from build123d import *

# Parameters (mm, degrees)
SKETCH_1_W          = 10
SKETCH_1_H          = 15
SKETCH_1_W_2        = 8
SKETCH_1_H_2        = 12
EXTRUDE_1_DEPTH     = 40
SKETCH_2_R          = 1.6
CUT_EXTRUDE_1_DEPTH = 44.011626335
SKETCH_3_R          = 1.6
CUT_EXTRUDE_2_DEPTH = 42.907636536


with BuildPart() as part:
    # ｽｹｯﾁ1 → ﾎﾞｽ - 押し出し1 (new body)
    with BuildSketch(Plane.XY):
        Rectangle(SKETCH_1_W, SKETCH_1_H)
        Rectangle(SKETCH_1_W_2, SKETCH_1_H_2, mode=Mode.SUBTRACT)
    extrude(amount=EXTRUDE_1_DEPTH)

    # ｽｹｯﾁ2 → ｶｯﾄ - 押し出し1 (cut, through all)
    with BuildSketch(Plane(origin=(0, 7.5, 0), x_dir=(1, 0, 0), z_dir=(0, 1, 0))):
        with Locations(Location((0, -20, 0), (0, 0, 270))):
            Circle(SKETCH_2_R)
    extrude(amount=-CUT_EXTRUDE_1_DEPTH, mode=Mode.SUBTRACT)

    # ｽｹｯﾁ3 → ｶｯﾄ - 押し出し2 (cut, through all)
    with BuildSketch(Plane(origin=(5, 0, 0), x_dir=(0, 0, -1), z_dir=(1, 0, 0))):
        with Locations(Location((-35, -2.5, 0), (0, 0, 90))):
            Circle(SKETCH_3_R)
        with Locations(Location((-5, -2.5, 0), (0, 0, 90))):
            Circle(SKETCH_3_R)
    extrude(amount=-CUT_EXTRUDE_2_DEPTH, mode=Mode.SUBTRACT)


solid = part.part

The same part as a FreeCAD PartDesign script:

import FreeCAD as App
import Part
import Sketcher
from FreeCAD import Vector
Q = App.Units.Quantity

doc = App.newDocument("Part")
body = doc.addObject("PartDesign::Body", "Body")

# Sketch on XY plane
sketch1 = doc.addObject("Sketcher::SketchObject", "Sketch")
body.addObject(sketch1)
sketch1.AttachmentSupport = (doc.XY_Plane, [""])
sketch1.MapMode = "FlatFace"
sketch1.addGeometry(Part.LineSegment(Vector(-5, 8, 0), Vector(-5, -8, 0)), False)
sketch1.addGeometry(Part.LineSegment(Vector(-5, -8, 0), Vector(5, -8, 0)), False)
sketch1.addGeometry(Part.LineSegment(Vector(5, -8, 0), Vector(5, 8, 0)), False)
sketch1.addGeometry(Part.LineSegment(Vector(5, 8, 0), Vector(-5, 8, 0)), False)
sketch1.addGeometry(Part.LineSegment(Vector(4, -6, 0), Vector(-4, -6, 0)), False)
sketch1.addGeometry(Part.LineSegment(Vector(-4, -6, 0), Vector(-4, 6, 0)), False)
sketch1.addGeometry(Part.LineSegment(Vector(-4, 6, 0), Vector(4, 6, 0)), False)
sketch1.addGeometry(Part.LineSegment(Vector(4, 6, 0), Vector(4, -6, 0)), False)
sketch1.addConstraint(Sketcher.Constraint("Coincident", 0, 2, 1, 1))
sketch1.addConstraint(Sketcher.Constraint("Coincident", 1, 2, 2, 1))
sketch1.addConstraint(Sketcher.Constraint("Coincident", 2, 2, 3, 1))
sketch1.addConstraint(Sketcher.Constraint("Coincident", 3, 2, 0, 1))
sketch1.addConstraint(Sketcher.Constraint("Coincident", 4, 2, 5, 1))
sketch1.addConstraint(Sketcher.Constraint("Coincident", 5, 2, 6, 1))
sketch1.addConstraint(Sketcher.Constraint("Coincident", 6, 2, 7, 1))
sketch1.addConstraint(Sketcher.Constraint("Coincident", 7, 2, 4, 1))
sketch1.addConstraint(Sketcher.Constraint("Vertical", 0))
sketch1.addConstraint(Sketcher.Constraint("Horizontal", 1))
sketch1.addConstraint(Sketcher.Constraint("Vertical", 2))
sketch1.addConstraint(Sketcher.Constraint("Horizontal", 3))
sketch1.addConstraint(Sketcher.Constraint("Horizontal", 4))
sketch1.addConstraint(Sketcher.Constraint("Vertical", 5))
sketch1.addConstraint(Sketcher.Constraint("Horizontal", 6))
sketch1.addConstraint(Sketcher.Constraint("Vertical", 7))
sketch1.addConstraint(Sketcher.Constraint("Symmetric", 0, 2, 2, 2, -1, 1))
sketch1.addConstraint(Sketcher.Constraint("Symmetric", 4, 2, 6, 2, -1, 1))
sketch1.addConstraint(Sketcher.Constraint("DistanceX", 1, 1, 1, 2, Q("10 mm")))
sketch1.addConstraint(Sketcher.Constraint("DistanceX", 4, 2, 4, 1, Q("8 mm")))
sketch1.addConstraint(Sketcher.Constraint("DistanceY", 0, 2, 0, 1, Q("15 mm")))
sketch1.addConstraint(Sketcher.Constraint("DistanceY", 5, 1, 5, 2, Q("12 mm")))
pad1 = doc.addObject("PartDesign::Pad", "Pad")
body.addObject(pad1)
pad1.Profile = sketch1
pad1.Length = 40

# Sketch on XZ plane
sketch2 = doc.addObject("Sketcher::SketchObject", "Sketch001")
body.addObject(sketch2)
sketch2.AttachmentSupport = (doc.XZ_Plane, [""])
sketch2.MapMode = "FlatFace"
sketch2.AttachmentOffset = App.Placement(Vector(0, 0, -7.5), App.Rotation())
sketch2.addGeometry(Part.Circle(Vector(0, 20, 0), Vector(0, 0, 1), 1.6), False)
sketch2.addConstraint(Sketcher.Constraint("PointOnObject", 0, 3, -2))
sketch2.addConstraint(Sketcher.Constraint("Diameter", 0, Q("3.2 mm")))
sketch2.addConstraint(Sketcher.Constraint("DistanceY", -1, 1, 0, 3, Q("20 mm")))
pocket1 = doc.addObject("PartDesign::Pocket", "Pocket")
body.addObject(pocket1)
pocket1.Profile = sketch2
pocket1.Type = "ThroughAll"
pocket1.Reversed = True

# Sketch on YZ plane
sketch3 = doc.addObject("Sketcher::SketchObject", "Sketch002")
body.addObject(sketch3)
sketch3.AttachmentSupport = (doc.YZ_Plane, [""])
sketch3.MapMode = "FlatFace"
sketch3.AttachmentOffset = App.Placement(Vector(0, 0, 5), App.Rotation())
sketch3.addGeometry(Part.Circle(Vector(-2.5, 35, 0), Vector(0, 0, 1), 1.6), False)
sketch3.addGeometry(Part.Circle(Vector(-2.5, 5, 0), Vector(0, 0, 1), 1.6), False)
sketch3.addConstraint(Sketcher.Constraint("Equal", 0, 1))
sketch3.addConstraint(Sketcher.Constraint("Vertical", 0, 3, 1, 3))
sketch3.addConstraint(Sketcher.Constraint("Diameter", 0, Q("3.2 mm")))
sketch3.addConstraint(Sketcher.Constraint("DistanceY", -1, 1, 0, 3, Q("35 mm")))
sketch3.addConstraint(Sketcher.Constraint("DistanceY", -1, 1, 1, 3, Q("5 mm")))
sketch3.addConstraint(Sketcher.Constraint("DistanceX", 0, 3, -1, 1, Q("2.5 mm")))
pocket2 = doc.addObject("PartDesign::Pocket", "Pocket001")
body.addObject(pocket2)
pocket2.Profile = sketch3
pocket2.Type = "ThroughAll"

doc.recompute()
